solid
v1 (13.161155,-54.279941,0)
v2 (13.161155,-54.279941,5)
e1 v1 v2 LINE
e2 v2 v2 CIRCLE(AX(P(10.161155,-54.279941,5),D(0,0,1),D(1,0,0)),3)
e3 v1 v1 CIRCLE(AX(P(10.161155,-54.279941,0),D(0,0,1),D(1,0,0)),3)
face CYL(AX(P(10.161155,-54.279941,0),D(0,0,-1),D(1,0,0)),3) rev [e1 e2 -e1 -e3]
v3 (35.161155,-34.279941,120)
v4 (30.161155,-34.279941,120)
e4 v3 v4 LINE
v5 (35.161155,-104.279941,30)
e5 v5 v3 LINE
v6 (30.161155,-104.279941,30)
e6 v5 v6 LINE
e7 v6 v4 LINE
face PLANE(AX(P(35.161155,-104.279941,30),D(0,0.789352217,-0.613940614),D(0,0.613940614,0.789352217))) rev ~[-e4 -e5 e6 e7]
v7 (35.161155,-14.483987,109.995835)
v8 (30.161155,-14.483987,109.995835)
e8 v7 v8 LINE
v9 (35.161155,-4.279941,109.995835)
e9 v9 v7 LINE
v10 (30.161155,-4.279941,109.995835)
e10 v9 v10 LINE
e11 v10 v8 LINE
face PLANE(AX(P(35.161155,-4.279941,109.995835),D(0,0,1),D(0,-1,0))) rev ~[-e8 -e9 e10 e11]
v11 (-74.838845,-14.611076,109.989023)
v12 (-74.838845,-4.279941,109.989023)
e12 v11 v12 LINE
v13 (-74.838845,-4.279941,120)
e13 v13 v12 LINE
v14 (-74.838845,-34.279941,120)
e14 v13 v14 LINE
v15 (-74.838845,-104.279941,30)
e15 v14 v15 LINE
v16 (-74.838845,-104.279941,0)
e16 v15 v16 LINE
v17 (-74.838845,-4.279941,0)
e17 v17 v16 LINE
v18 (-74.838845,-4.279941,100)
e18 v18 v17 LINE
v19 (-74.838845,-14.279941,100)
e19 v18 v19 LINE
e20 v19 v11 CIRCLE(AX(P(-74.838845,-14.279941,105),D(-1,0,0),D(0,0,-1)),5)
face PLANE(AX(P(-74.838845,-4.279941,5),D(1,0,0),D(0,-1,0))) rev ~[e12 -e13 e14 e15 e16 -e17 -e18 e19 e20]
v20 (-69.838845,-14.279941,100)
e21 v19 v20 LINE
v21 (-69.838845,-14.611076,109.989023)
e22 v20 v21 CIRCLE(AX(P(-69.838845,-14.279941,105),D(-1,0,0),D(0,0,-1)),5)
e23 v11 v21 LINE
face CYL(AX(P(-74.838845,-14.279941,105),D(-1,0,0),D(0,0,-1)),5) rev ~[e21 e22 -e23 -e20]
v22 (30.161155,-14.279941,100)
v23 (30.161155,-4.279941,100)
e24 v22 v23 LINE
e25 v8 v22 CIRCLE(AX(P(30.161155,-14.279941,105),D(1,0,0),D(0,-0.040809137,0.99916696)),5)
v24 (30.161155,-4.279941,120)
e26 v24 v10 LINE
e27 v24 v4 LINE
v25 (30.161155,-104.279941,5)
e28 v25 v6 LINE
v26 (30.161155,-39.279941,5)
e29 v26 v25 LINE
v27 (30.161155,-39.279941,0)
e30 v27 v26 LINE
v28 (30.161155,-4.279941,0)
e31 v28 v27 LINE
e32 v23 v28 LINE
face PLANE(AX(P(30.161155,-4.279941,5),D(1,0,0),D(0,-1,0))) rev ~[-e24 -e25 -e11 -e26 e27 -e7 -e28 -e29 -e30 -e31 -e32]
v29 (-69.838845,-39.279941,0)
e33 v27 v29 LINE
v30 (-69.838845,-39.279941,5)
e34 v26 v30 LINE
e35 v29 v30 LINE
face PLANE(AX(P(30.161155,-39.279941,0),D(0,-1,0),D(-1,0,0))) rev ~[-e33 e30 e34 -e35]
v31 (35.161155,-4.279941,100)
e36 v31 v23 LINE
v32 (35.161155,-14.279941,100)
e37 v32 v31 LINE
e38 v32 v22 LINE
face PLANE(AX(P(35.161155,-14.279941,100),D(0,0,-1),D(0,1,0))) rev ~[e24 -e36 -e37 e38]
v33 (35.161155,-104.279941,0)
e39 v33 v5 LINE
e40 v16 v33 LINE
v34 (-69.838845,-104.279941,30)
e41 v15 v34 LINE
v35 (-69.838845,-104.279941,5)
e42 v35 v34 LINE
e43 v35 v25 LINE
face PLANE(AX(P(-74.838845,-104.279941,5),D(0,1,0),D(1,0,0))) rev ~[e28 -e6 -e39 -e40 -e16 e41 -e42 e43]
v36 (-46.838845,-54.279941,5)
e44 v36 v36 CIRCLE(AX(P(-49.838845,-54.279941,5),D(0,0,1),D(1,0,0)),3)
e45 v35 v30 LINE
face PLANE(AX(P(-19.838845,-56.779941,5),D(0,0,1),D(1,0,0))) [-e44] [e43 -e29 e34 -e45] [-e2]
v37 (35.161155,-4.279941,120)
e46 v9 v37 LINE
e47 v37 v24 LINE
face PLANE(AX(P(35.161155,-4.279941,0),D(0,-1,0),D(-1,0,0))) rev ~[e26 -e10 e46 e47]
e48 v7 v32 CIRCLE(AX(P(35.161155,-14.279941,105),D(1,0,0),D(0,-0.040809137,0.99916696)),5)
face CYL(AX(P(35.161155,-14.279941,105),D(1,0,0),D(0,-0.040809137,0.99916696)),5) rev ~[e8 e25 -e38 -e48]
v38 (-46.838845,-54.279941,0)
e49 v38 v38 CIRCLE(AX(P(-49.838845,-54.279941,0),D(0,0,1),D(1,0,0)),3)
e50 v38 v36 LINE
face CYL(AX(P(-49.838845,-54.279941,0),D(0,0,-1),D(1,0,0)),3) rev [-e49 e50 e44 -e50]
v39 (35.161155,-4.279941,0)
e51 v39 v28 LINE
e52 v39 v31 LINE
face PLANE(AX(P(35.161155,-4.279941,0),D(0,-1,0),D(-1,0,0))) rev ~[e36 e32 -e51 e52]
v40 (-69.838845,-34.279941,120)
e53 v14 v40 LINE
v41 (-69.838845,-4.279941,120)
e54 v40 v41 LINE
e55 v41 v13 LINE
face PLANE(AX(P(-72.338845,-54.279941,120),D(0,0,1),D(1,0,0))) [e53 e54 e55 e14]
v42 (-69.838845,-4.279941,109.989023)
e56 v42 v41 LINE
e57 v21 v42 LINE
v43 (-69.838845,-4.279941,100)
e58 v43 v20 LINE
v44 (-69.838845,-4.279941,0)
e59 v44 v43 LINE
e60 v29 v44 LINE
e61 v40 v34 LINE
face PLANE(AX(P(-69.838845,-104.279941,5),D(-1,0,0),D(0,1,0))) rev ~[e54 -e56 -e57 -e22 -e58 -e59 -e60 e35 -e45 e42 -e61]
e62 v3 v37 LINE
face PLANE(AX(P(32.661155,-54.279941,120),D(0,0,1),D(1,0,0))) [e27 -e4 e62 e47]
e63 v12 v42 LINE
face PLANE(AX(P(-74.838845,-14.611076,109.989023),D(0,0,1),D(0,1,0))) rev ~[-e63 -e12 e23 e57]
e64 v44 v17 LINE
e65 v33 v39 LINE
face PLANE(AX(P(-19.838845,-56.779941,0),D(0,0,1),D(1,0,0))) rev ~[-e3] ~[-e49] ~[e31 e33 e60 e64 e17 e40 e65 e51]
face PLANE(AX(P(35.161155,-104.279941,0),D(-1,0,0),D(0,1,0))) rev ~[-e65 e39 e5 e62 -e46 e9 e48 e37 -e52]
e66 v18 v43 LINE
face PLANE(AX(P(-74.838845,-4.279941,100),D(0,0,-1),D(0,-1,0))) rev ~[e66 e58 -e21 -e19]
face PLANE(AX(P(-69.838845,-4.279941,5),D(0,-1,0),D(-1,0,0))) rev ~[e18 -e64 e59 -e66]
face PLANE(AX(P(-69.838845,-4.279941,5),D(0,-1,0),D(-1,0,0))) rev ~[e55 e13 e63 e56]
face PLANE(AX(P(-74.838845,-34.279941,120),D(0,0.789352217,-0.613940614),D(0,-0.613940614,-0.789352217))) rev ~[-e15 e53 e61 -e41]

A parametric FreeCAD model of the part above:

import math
import FreeCAD as App
import Part
import Sketcher
Q = App.Units.Quantity


def add_polygon(sketch, points):
    """Adds a closed chain of lines whose ends are joined by coincident constraints."""
    first, n = sketch.GeometryCount, len(points)
    for a, b in zip(points, points[1:] + points[:1]):
        sketch.addGeometry(Part.LineSegment(App.Vector(*a, 0), App.Vector(*b, 0)), False)
    for i in range(n):
        sketch.addConstraint(Sketcher.Constraint("Coincident", first + i, 2, first + (i + 1) % n, 1))

doc = App.newDocument("Part")
body = doc.addObject("PartDesign::Body", "Body")

sketch1 = body.newObject("Sketcher::SketchObject", "Sketch")
sketch1.AttachmentSupport = (doc.getObject("XY_Plane"), [""])
sketch1.MapMode = "FlatFace"
add_polygon(sketch1, [(-74.8, -4.3), (-74.8, -104.3), (35.2, -104.3), (35.2, -4.3), (30.2, -4.3), (30.2, -39.3), (-69.8, -39.3), (-69.8, -4.3)])
sketch1.addGeometry(Part.Circle(App.Vector(-49.8, -54.3, 0), App.Vector(0, 0, 1), 3), False)
sketch1.addGeometry(Part.Circle(App.Vector(10.2, -54.3, 0), App.Vector(0, 0, 1), 3), False)
sketch1.addConstraint([
    Sketcher.Constraint("Vertical", 0),
    Sketcher.Constraint("Horizontal", 1),
    Sketcher.Constraint("Vertical", 2),
    Sketcher.Constraint("Horizontal", 3),
    Sketcher.Constraint("Vertical", 4),
    Sketcher.Constraint("Horizontal", 5),
    Sketcher.Constraint("Vertical", 6),
    Sketcher.Constraint("Horizontal", 7),
    Sketcher.Constraint("Equal", 8, 9),
    Sketcher.Constraint("Horizontal", 8, 3, 9, 3),
    Sketcher.Constraint("Horizontal", 3, 2, 6, 2),
    Sketcher.Constraint("Equal", 3, 7),
    Sketcher.Constraint("Equal", 5, 0),
    Sketcher.Constraint("Diameter", 8, Q("6 mm")),
    Sketcher.Constraint("DistanceX", 1, 1, 1, 2, Q("110 mm")),
    Sketcher.Constraint("DistanceX", 3, 2, 3, 1, Q("5 mm")),
    Sketcher.Constraint("DistanceY", 4, 2, 4, 1, Q("35 mm")),
    Sketcher.Constraint("DistanceX", 8, 3, 9, 3, Q("60 mm")),
    Sketcher.Constraint("DistanceX", 0, 2, 8, 3, Q("25 mm")),
    Sketcher.Constraint("DistanceY", 0, 2, 8, 3, Q("50 mm")),
    Sketcher.Constraint("DistanceY", 8, 3, -1, 1, Q("54.279941 mm")),
    Sketcher.Constraint("DistanceX", 8, 3, -1, 1, Q("49.838845 mm")),
])
pad1 = body.newObject("PartDesign::Pad", "Pad")
pad1.Profile = sketch1
pad1.Length = 5

sketch2 = body.newObject("Sketcher::SketchObject", "Sketch001")
sketch2.AttachmentSupport = (doc.getObject("XY_Plane"), [""])
sketch2.MapMode = "FlatFace"
sketch2.AttachmentOffset = App.Placement(App.Vector(0, 0, 5), App.Rotation())
add_polygon(sketch2, [(-75, -104), (-70, -104), (-70, -4), (-75, -4)])
add_polygon(sketch2, [(30, -104), (35, -104), (35, -4), (30, -4)])
sketch2.addConstraint([
    Sketcher.Constraint("Horizontal", 0),
    Sketcher.Constraint("Vertical", 1),
    Sketcher.Constraint("Horizontal", 2),
    Sketcher.Constraint("Vertical", 3),
    Sketcher.Constraint("Horizontal", 4),
    Sketcher.Constraint("Vertical", 5),
    Sketcher.Constraint("Horizontal", 6),
    Sketcher.Constraint("Vertical", 7),
    Sketcher.Constraint("Horizontal", 3, 2, 4, 2),
    Sketcher.Constraint("Horizontal", 2, 2, 5, 2),
    Sketcher.Constraint("Equal", 2, 4),
    Sketcher.Constraint("DistanceX", 0, 1, 0, 2, Q("5 mm")),
    Sketcher.Constraint("DistanceY", 1, 1, 1, 2, Q("100 mm")),
    Sketcher.Constraint("DistanceX", 0, 2, 4, 2, Q("105 mm")),
    Sketcher.Constraint("DistanceY", 0, 2, -1, 1, Q("104.279941 mm")),
    Sketcher.Constraint("DistanceX", 0, 2, -1, 1, Q("69.838845 mm")),
])
pad2 = body.newObject("PartDesign::Pad", "Pad001")
pad2.Profile = sketch2
pad2.Length = 115

sketch3 = body.newObject("Sketcher::SketchObject", "Sketch002")
sketch3.AttachmentSupport = (doc.getObject("YZ_Plane"), [""])
sketch3.MapMode = "FlatFace"
sketch3.AttachmentOffset = App.Placement(App.Vector(0, 0, 35.161155), App.Rotation())
add_polygon(sketch3, [(-104, 30), (-34, 120), (-104, 120)])
sketch3.addGeometry(Part.LineSegment(App.Vector(-4, 100, 0), App.Vector(-4, 110, 0)), False)
sketch3.addGeometry(Part.LineSegment(App.Vector(-4, 110, 0), App.Vector(-14, 110, 0)), False)
sketch3.addGeometry(Part.ArcOfCircle(Part.Circle(App.Vector(-14, 105, 0), App.Vector(0, 0, 1), 5), math.radians(92), math.radians(270)), False)
sketch3.addGeometry(Part.LineSegment(App.Vector(-14, 100, 0), App.Vector(-4, 100, 0)), False)
sketch3.addConstraint([
    Sketcher.Constraint("Coincident", 3, 2, 4, 1),
    Sketcher.Constraint("Coincident", 4, 2, 5, 1),
    Sketcher.Constraint("Tangent", 5, 2, 6, 1),
    Sketcher.Constraint("Coincident", 6, 2, 3, 1),
    Sketcher.Constraint("Horizontal", 1),
    Sketcher.Constraint("Vertical", 2),
    Sketcher.Constraint("Vertical", 3),
    Sketcher.Constraint("Horizontal", 4),
    Sketcher.Constraint("Horizontal", 6),
    Sketcher.Constraint("Radius", 5, Q("5 mm")),
    Sketcher.Constraint("DistanceX", 1, 2, 1, 1, Q("70 mm")),
    Sketcher.Constraint("DistanceX", 6, 1, 6, 2, Q("10 mm")),
    Sketcher.Constraint("DistanceY", 2, 2, 2, 1, Q("90 mm")),
    Sketcher.Constraint("DistanceY", -1, 1, 5, 3, Q("105 mm")),
    Sketcher.Constraint("DistanceY", -1, 1, 0, 2, Q("120 mm")),
    Sketcher.Constraint("DistanceX", 0, 2, 5, 3, Q("20 mm")),
    Sketcher.Constraint("DistanceX", 4, 2, 4, 1, Q("10.204046 mm")),
    Sketcher.Constraint("DistanceX", 5, 3, -1, 1, Q("14.279941 mm")),
])
pocket1 = body.newObject("PartDesign::Pocket", "Pocket")
pocket1.Profile = sketch3
pocket1.Length = 25

sketch4 = body.newObject("Sketcher::SketchObject", "Sketch003")
sketch4.AttachmentSupport = (doc.getObject("YZ_Plane"), [""])
sketch4.MapMode = "FlatFace"
sketch4.AttachmentOffset = App.Placement(App.Vector(0, 0, -74.838845), App.Rotation())
sketch4.addGeometry(Part.LineSegment(App.Vector(-4, 110, 0), App.Vector(-4, 100, 0)), False)
sketch4.addGeometry(Part.LineSegment(App.Vector(-4, 100, 0), App.Vector(-14, 100, 0)), False)
sketch4.addGeometry(Part.ArcOfCircle(Part.Circle(App.Vector(-14, 105, 0), App.Vector(0, 0, 1), 5), math.radians(94), math.radians(270)), False)
sketch4.addGeometry(Part.LineSegment(App.Vector(-15, 110, 0), App.Vector(-4, 110, 0)), False)
add_polygon(sketch4, [(-104, 120), (-34, 120), (-104, 30)])
sketch4.addConstraint([
    Sketcher.Constraint("Coincident", 0, 2, 1, 1),
    Sketcher.Constraint("Tangent", 1, 2, 2, 2),
    Sketcher.Constraint("Coincident", 2, 1, 3, 1),
    Sketcher.Constraint("Coincident", 3, 2, 0, 1),
    Sketcher.Constraint("Vertical", 0),
    Sketcher.Constraint("Horizontal", 1),
    Sketcher.Constraint("Horizontal", 3),
    Sketcher.Constraint("Horizontal", 4),
    Sketcher.Constraint("Vertical", 6),
    Sketcher.Constraint("Radius", 2, Q("5 mm")),
    Sketcher.Constraint("DistanceX", 1, 2, 1, 1, Q("10 mm")),
    Sketcher.Constraint("DistanceX", 4, 1, 4, 2, Q("70 mm")),
    Sketcher.Constraint("DistanceY", 6, 1, 6, 2, Q("90 mm")),
    Sketcher.Constraint("DistanceY", -1, 1, 2, 3, Q("105 mm")),
    Sketcher.Constraint("DistanceY", -1, 1, 4, 2, Q("120 mm")),
    Sketcher.Constraint("DistanceX", 4, 2, 2, 3, Q("20 mm")),
    Sketcher.Constraint("DistanceX", 3, 1, 3, 2, Q("10.331135 mm")),
    Sketcher.Constraint("DistanceX", 2, 3, -1, 1, Q("14.279941 mm")),
])
pocket2 = body.newObject("PartDesign::Pocket", "Pocket001")
pocket2.Profile = sketch4
pocket2.Length = 25
pocket2.Reversed = True

doc.recompute()
